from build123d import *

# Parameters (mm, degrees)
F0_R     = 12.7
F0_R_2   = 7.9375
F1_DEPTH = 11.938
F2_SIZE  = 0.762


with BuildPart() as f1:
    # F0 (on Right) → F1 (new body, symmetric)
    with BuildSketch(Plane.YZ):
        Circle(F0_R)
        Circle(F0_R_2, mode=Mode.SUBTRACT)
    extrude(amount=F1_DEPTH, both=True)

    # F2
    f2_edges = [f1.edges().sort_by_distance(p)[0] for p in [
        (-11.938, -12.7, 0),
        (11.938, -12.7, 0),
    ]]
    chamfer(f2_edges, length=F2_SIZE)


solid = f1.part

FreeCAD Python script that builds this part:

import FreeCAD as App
import Part
import Sketcher
from FreeCAD import Vector
Q = App.Units.Quantity


def edges_at(feature, points):
    """Names of the edges that pass closest to the given points."""
    edges = feature.Shape.Edges
    near = lambda p: min(range(len(edges)), key=lambda i: edges[i].distToShape(Part.Vertex(*p))[0])
    return sorted({f"Edge{near(p) + 1}" for p in points})

doc = App.newDocument("Part")
params = doc.addObject("Spreadsheet::Sheet", "Params")
for row, (alias, value) in enumerate([
    ("sketch1_diameter", "1 in"),
    ("sketch1_diameter2", "0.625 in"),
    ("pad1_length", "0.94 in"),
    ("chamfer_size", "0.03 in"),
], start=1):
    params.set(f"A{row}", alias)
    params.set(f"B{row}", "=" + value)
    params.setAlias(f"B{row}", alias)

body = doc.addObject("PartDesign::Body", "Body")

# Sketch on YZ plane
sketch1 = body.newObject("Sketcher::SketchObject", "Sketch")
sketch1.AttachmentSupport = (doc.getObject("YZ_Plane"), [""])
sketch1.MapMode = "FlatFace"
sketch1.addGeometry([
    Part.Circle(Vector(0, 0, 0), Vector(0, 0, 1), 12.7),
    Part.Circle(Vector(0, 0, 0), Vector(0, 0, 1), 7.9375),
], False)
sketch1.addConstraint([
    Sketcher.Constraint("Coincident", 0, 3, -1, 1),
    Sketcher.Constraint("Coincident", 1, 3, -1, 1),
    Sketcher.Constraint("Diameter", 0, Q("1 in")),
    Sketcher.Constraint("Diameter", 1, Q("0.625 in")),
])
sketch1.setExpression("Constraints[2]", "Params.sketch1_diameter")
sketch1.setExpression("Constraints[3]", "Params.sketch1_diameter2")
pad1 = body.newObject("PartDesign::Pad", "Pad")
pad1.Profile = sketch1
pad1.setExpression("Length", "Params.pad1_length")
pad1.Midplane = True
doc.recompute()

chamfer = body.newObject("PartDesign::Chamfer", "Chamfer")
chamfer.Base = (pad1, edges_at(pad1, [(-11.938, -12.7, 0), (11.938, -12.7, 0)]))
chamfer.setExpression("Size", "Params.chamfer_size")

doc.recompute()
